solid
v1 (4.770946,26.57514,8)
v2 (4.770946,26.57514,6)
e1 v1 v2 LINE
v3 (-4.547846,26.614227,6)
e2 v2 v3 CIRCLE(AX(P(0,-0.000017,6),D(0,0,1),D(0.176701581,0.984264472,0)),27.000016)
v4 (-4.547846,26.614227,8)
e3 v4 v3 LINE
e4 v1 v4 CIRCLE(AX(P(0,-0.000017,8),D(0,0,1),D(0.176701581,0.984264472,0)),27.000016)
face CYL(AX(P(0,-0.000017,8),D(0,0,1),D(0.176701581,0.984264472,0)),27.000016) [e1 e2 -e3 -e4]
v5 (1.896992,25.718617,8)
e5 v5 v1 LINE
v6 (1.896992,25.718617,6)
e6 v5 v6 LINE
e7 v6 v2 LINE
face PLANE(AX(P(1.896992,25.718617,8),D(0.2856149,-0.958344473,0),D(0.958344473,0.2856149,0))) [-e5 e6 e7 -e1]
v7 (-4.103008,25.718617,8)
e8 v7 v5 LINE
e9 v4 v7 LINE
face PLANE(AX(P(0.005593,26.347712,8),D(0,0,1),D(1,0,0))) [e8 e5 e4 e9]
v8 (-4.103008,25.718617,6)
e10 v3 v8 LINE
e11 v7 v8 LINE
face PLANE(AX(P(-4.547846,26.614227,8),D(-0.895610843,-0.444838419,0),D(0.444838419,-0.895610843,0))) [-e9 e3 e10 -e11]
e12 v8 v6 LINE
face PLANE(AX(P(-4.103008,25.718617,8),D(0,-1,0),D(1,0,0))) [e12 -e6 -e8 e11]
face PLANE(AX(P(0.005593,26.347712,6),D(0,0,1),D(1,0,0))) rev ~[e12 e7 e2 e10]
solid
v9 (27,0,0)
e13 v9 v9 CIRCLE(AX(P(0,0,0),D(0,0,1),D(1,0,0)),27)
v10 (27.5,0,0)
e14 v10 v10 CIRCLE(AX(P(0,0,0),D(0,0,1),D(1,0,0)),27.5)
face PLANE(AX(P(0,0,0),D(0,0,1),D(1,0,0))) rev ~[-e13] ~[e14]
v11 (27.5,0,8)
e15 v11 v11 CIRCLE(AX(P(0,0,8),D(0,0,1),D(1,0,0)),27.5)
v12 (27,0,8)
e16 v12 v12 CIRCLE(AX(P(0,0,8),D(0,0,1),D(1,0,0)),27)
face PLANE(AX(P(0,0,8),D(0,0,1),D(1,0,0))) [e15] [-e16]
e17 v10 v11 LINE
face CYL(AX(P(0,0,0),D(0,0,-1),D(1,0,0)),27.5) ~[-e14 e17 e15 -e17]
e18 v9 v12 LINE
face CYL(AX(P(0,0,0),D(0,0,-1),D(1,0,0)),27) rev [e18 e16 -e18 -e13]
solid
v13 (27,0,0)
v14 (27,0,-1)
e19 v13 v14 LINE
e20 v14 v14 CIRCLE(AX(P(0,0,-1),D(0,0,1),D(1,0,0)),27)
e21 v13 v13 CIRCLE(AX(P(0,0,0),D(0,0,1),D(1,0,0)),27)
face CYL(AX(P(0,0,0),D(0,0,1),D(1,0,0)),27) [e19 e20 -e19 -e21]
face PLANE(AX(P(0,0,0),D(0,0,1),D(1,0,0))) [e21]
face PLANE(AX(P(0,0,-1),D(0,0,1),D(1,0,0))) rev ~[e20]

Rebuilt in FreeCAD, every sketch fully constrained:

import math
import FreeCAD as App
import Part
import Sketcher
from FreeCAD import Vector
Q = App.Units.Quantity

doc = App.newDocument("Part")
body = doc.addObject("PartDesign::Body", "Body")

sketch1 = body.newObject("Sketcher::SketchObject", "Sketch")
sketch1.AttachmentSupport = (doc.getObject("XY_Plane"), [""])
sketch1.MapMode = "FlatFace"
sketch1.addGeometry(Part.Circle(Vector(0, 0, 0), Vector(0, 0, 1), 28), False)
sketch1.addGeometry(Part.Circle(Vector(0, 0, 0), Vector(0, 0, 1), 27), False)
sketch1.addConstraint(Sketcher.Constraint("Coincident", 0, 3, -1, 1))
sketch1.addConstraint(Sketcher.Constraint("Coincident", 1, 3, -1, 1))
sketch1.addConstraint(Sketcher.Constraint("Diameter", 0, Q("55 mm")))
sketch1.addConstraint(Sketcher.Constraint("Diameter", 1, Q("54 mm")))
pad1 = body.newObject("PartDesign::Pad", "Pad")
pad1.Profile = sketch1
pad1.Length = 8
body2 = doc.addObject("PartDesign::Body", "Body001")

sketch2 = body2.newObject("Sketcher::SketchObject", "Sketch001")
sketch2.AttachmentSupport = (doc.getObject("XY_Plane001"), [""])
sketch2.MapMode = "FlatFace"
sketch2.addGeometry(Part.Circle(Vector(0, 0, 0), Vector(0, 0, 1), 27), False)
sketch2.addConstraint(Sketcher.Constraint("Coincident", 0, 3, -1, 1))
sketch2.addConstraint(Sketcher.Constraint("Diameter", 0, Q("54 mm")))
pad2 = body2.newObject("PartDesign::Pad", "Pad001")
pad2.Profile = sketch2
pad2.Length = 1
pad2.Reversed = True
body3 = doc.addObject("PartDesign::Body", "Body002")

sketch3 = body3.newObject("Sketcher::SketchObject", "Sketch002")
sketch3.AttachmentSupport = (doc.getObject("XY_Plane002"), [""])
sketch3.MapMode = "FlatFace"
sketch3.AttachmentOffset = App.Placement(Vector(0, 0, 8), App.Rotation())
sketch3.addGeometry(Part.ArcOfCircle(Part.Circle(Vector(0, 0, 0), Vector(0, 0, 1), 27), math.radians(79.82), math.radians(99.7)), False)
sketch3.addGeometry(Part.LineSegment(Vector(-4.5, 26.6, 0), Vector(-4.1, 25.7, 0)), False)
sketch3.addGeometry(Part.LineSegment(Vector(-4.1, 25.7, 0), Vector(1.9, 25.7, 0)), False)
sketch3.addGeometry(Part.LineSegment(Vector(1.9, 25.7, 0), Vector(4.8, 26.6, 0)), False)
sketch3.addConstraint(Sketcher.Constraint("Coincident", 0, 2, 1, 1))
sketch3.addConstraint(Sketcher.Constraint("Coincident", 1, 2, 2, 1))
sketch3.addConstraint(Sketcher.Constraint("Coincident", 2, 2, 3, 1))
sketch3.addConstraint(Sketcher.Constraint("Coincident", 3, 2, 0, 1))
sketch3.addConstraint(Sketcher.Constraint("Horizontal", 2))
sketch3.addConstraint(Sketcher.Constraint("PointOnObject", 0, 3, -2))
sketch3.addConstraint(Sketcher.Constraint("DistanceX", 2, 1, 2, 2, Q("6 mm")))
sketch3.addConstraint(Sketcher.Constraint("Distance", 1, Q("0.999999 mm")))
sketch3.addConstraint(Sketcher.Constraint("Radius", 0, Q("27.000016 mm")))
sketch3.addConstraint(Sketcher.Constraint("DistanceY", -1, 1, 3, 2, Q("26.57514 mm")))
sketch3.addConstraint(Sketcher.Constraint("DistanceX", 0, 2, 1, 2, Q("0.444838 mm")))
sketch3.addConstraint(Sketcher.Constraint("DistanceX", 1, 2, 0, 3, Q("4.103008 mm")))
sketch3.addConstraint(Sketcher.Constraint("Distance", 3, Q("2.998874 mm")))
pad3 = body3.newObject("PartDesign::Pad", "Pad002")
pad3.Profile = sketch3
pad3.Length = 2
pad3.Reversed = True

doc.recompute()
